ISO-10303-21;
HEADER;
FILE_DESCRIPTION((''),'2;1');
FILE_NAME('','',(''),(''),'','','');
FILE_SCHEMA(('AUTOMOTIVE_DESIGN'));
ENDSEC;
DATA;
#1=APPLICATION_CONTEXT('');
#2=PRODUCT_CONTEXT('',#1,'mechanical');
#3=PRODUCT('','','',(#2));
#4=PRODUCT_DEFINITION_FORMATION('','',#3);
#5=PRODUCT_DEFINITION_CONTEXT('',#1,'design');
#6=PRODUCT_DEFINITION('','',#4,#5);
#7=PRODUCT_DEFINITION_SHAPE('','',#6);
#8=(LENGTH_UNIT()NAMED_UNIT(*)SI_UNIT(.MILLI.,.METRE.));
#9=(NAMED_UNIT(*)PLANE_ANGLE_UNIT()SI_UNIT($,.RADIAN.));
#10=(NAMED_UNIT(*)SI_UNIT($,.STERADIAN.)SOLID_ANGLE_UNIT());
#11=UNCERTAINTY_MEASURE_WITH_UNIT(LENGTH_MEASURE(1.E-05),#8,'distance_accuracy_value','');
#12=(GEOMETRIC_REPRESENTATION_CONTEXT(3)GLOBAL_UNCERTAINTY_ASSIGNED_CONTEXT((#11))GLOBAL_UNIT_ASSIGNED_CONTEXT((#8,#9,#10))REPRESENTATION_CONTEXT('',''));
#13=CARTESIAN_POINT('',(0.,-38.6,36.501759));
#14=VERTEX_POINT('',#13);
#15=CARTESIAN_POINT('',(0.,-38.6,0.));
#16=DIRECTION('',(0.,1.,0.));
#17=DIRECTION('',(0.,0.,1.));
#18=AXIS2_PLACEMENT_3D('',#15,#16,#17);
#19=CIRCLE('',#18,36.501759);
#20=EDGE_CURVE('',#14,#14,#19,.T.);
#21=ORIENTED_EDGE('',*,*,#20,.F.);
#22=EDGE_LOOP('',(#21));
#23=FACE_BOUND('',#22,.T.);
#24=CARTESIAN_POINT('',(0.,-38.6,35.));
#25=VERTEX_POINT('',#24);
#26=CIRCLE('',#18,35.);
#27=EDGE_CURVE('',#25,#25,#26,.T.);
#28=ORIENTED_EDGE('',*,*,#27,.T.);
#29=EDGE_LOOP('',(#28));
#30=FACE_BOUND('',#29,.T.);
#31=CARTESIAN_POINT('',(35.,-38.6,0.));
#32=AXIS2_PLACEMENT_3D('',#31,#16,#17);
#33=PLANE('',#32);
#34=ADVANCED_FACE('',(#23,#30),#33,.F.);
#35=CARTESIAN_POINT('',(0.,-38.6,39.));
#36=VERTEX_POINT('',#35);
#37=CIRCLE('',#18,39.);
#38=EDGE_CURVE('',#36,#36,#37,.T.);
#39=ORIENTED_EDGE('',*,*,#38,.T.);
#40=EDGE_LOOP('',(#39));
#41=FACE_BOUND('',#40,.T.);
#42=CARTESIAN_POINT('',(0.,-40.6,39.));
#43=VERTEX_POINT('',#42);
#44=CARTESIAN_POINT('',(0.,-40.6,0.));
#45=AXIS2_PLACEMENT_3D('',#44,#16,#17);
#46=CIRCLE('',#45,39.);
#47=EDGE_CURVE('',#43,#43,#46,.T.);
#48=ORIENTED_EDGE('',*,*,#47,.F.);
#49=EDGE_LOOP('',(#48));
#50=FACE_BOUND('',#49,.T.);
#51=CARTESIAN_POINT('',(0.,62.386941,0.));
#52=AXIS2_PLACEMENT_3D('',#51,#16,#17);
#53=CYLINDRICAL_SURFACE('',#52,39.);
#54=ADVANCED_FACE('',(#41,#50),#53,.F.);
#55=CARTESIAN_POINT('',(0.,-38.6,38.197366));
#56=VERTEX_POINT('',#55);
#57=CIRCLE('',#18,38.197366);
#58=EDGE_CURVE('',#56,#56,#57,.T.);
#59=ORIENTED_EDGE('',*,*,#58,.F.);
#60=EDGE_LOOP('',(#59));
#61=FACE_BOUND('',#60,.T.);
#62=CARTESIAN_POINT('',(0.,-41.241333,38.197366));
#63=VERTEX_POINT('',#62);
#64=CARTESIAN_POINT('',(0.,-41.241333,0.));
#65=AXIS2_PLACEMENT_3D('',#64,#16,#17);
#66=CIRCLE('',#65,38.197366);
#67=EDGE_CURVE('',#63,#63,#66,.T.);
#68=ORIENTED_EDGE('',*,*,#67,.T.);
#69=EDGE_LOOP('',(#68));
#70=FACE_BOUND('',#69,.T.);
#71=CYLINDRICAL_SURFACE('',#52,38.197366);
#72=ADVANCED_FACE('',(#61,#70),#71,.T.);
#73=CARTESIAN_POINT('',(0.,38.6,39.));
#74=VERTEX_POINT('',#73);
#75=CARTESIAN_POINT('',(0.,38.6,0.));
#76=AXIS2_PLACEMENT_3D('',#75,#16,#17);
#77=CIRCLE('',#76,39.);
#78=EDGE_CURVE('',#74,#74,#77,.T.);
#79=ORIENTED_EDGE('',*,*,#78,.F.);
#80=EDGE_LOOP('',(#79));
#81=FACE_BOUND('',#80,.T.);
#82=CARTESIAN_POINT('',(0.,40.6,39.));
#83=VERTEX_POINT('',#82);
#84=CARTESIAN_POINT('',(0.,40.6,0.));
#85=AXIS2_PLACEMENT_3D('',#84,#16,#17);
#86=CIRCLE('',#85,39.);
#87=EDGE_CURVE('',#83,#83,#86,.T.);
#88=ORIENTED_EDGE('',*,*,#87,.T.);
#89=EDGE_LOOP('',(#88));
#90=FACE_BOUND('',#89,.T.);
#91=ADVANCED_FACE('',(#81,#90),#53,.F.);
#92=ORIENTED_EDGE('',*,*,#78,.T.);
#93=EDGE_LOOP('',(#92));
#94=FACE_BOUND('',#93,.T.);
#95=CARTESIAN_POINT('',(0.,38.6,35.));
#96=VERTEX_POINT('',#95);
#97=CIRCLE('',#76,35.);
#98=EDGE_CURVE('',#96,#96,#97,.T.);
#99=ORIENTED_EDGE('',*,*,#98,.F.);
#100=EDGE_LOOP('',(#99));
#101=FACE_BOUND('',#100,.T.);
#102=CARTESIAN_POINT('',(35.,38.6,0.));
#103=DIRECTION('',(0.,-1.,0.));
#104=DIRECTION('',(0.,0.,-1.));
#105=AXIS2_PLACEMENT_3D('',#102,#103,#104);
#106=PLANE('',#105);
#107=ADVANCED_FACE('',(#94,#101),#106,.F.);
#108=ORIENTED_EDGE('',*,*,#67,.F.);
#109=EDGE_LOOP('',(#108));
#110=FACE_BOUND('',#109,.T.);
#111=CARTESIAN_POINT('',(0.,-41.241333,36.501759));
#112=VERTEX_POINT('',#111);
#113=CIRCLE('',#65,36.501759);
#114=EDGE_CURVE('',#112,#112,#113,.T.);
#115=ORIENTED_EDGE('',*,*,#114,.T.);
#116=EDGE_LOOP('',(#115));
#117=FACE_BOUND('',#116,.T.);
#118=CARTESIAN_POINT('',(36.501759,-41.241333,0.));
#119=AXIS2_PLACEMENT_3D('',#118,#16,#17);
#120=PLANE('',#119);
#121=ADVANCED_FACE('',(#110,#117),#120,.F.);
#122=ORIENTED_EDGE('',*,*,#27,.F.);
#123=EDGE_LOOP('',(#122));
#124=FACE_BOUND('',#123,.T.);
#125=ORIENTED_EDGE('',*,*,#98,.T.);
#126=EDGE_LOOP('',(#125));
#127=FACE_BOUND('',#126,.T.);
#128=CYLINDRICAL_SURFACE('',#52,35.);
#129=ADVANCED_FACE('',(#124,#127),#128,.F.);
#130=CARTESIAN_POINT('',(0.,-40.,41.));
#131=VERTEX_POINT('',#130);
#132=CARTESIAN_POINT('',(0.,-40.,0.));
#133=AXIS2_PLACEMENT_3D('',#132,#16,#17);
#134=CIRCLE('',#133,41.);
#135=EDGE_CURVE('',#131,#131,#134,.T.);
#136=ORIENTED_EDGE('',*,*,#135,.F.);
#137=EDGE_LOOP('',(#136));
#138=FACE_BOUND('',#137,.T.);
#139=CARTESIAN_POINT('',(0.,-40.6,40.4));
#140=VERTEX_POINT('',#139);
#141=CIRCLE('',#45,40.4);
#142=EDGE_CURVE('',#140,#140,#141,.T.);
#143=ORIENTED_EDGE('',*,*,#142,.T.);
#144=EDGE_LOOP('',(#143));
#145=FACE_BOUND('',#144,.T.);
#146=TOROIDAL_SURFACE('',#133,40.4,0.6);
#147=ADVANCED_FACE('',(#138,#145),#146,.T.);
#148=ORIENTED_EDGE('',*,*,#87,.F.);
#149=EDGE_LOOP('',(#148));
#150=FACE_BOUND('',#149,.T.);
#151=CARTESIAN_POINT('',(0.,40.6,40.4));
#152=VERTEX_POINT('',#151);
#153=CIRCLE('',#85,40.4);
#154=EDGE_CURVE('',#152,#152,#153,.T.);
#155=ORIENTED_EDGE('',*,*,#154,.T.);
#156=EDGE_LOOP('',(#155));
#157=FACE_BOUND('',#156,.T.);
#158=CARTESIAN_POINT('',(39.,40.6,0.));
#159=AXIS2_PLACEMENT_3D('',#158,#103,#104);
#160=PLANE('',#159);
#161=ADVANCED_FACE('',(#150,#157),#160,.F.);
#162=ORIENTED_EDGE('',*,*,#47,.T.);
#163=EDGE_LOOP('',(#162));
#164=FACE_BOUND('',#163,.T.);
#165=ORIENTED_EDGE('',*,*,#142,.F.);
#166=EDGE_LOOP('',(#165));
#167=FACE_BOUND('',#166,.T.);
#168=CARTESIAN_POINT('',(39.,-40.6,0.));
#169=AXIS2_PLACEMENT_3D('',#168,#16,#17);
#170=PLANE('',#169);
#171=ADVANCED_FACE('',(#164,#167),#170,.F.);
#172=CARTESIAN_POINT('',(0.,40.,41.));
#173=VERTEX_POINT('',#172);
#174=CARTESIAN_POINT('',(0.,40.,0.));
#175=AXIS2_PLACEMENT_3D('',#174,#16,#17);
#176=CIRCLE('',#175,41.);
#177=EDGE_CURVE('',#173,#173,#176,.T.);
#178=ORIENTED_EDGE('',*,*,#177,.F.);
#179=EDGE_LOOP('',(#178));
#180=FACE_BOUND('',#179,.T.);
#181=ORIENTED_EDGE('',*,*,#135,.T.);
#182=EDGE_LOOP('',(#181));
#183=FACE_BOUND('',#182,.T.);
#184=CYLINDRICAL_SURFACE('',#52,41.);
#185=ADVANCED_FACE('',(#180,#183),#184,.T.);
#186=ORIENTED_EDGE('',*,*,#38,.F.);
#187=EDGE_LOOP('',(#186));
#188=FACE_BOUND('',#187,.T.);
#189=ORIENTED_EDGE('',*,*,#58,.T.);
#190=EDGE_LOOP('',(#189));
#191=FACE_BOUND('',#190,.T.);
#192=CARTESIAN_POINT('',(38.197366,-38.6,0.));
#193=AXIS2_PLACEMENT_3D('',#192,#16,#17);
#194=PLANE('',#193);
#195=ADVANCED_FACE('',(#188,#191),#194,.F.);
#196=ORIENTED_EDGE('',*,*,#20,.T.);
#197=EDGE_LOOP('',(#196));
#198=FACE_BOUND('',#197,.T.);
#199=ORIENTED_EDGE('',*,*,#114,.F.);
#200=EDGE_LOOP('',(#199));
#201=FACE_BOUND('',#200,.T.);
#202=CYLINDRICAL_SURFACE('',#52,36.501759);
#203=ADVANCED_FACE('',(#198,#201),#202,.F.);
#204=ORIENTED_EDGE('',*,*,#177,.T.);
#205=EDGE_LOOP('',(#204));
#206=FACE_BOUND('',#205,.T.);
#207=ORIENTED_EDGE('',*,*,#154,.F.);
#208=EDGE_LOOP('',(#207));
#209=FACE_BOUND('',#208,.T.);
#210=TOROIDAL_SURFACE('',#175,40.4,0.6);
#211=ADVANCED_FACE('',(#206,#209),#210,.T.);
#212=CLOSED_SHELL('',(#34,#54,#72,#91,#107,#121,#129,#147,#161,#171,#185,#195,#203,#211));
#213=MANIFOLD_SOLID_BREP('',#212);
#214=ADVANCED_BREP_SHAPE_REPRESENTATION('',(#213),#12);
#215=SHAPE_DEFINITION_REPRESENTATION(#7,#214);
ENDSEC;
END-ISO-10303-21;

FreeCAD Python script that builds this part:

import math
import FreeCAD as App
import Part
import Sketcher

V = App.Vector
Q = App.Units.Quantity

doc = App.newDocument("Part")
params = doc.addObject("Spreadsheet::Sheet", "Params")
for row, (alias, value) in enumerate([
    ("sketch1_radius", "0.6 mm"),
    ("sketch1_width", "4 mm"),
    ("sketch1_height", "2 mm"),
    ("sketch1_height2", "80 mm"),
    ("sketch1_width2", "1.4 mm"),
    ("revolution_angle", "360 deg"),
], start=1):
    params.set(f"A{row}", alias)
    params.set(f"B{row}", "=" + value)
    params.setAlias(f"B{row}", alias)

body = doc.addObject("PartDesign::Body", "Body")

# Sketch on XY plane
sketch1 = doc.addObject("Sketcher::SketchObject", "Sketch")
body.addObject(sketch1)
sketch1.AttachmentSupport = (doc.XY_Plane, [""])
sketch1.MapMode = "FlatFace"
sketch1.addGeometry([
    Part.LineSegment(V(35, 38.6, 0), V(35, -38.6, 0)),  # 0
    Part.LineSegment(V(35, -38.6, 0), V(36.5, -38.6, 0)),  # 1
    Part.LineSegment(V(36.5, -38.6, 0), V(36.5, -41.2, 0)),  # 2
    Part.LineSegment(V(36.5, -41.2, 0), V(38.2, -41.2, 0)),  # 3
    Part.LineSegment(V(38.2, -41.2, 0), V(38.2, -38.6, 0)),  # 4
    Part.LineSegment(V(38.2, -38.6, 0), V(39, -38.6, 0)),  # 5
    Part.LineSegment(V(39, -38.6, 0), V(39, -40.6, 0)),  # 6
    Part.LineSegment(V(39, -40.6, 0), V(40.4, -40.6, 0)),  # 7
    Part.ArcOfCircle(Part.Circle(V(40.4, -40, 0), V(0, 0, 1), 0.6), math.radians(-90), math.radians(0)),  # 8
    Part.LineSegment(V(41, -40, 0), V(41, 40, 0)),  # 9
    Part.ArcOfCircle(Part.Circle(V(40.4, 40, 0), V(0, 0, 1), 0.6), math.radians(0), math.radians(90)),  # 10
    Part.LineSegment(V(40.4, 40.6, 0), V(39, 40.6, 0)),  # 11
    Part.LineSegment(V(39, 40.6, 0), V(39, 38.6, 0)),  # 12
    Part.LineSegment(V(39, 38.6, 0), V(35, 38.6, 0)),  # 13
], False)
sketch1.addConstraint([
    Sketcher.Constraint("Coincident", 0, 2, 1, 1),
    Sketcher.Constraint("Coincident", 1, 2, 2, 1),
    Sketcher.Constraint("Coincident", 2, 2, 3, 1),
    Sketcher.Constraint("Coincident", 3, 2, 4, 1),
    Sketcher.Constraint("Coincident", 4, 2, 5, 1),
    Sketcher.Constraint("Coincident", 5, 2, 6, 1),
    Sketcher.Constraint("Coincident", 6, 2, 7, 1),
    Sketcher.Constraint("Tangent", 7, 2, 8, 1),
    Sketcher.Constraint("Tangent", 8, 2, 9, 1),
    Sketcher.Constraint("Tangent", 9, 2, 10, 1),
    Sketcher.Constraint("Tangent", 10, 2, 11, 1),
    Sketcher.Constraint("Coincident", 11, 2, 12, 1),
    Sketcher.Constraint("Coincident", 12, 2, 13, 1),
    Sketcher.Constraint("Coincident", 13, 2, 0, 1),
    Sketcher.Constraint("Vertical", 0),
    Sketcher.Constraint("Horizontal", 1),
    Sketcher.Constraint("Vertical", 2),
    Sketcher.Constraint("Horizontal", 3),
    Sketcher.Constraint("Vertical", 4),
    Sketcher.Constraint("Horizontal", 5),
    Sketcher.Constraint("Vertical", 6),
    Sketcher.Constraint("Horizontal", 7),
    Sketcher.Constraint("Vertical", 9),
    Sketcher.Constraint("Horizontal", 11),
    Sketcher.Constraint("Vertical", 12),
    Sketcher.Constraint("Horizontal", 13),
    Sketcher.Constraint("Equal", 8, 10),
    Sketcher.Constraint("Symmetric", 6, 2, 11, 2, -1),
    Sketcher.Constraint("Horizontal", 1, 2, 4, 2),
    Sketcher.Constraint("Equal", 6, 12),
    Sketcher.Constraint("Radius", 8, Q("0.6 mm")),
    Sketcher.Constraint("DistanceX", 13, 2, 13, 1, Q("4 mm")),
    Sketcher.Constraint("DistanceY", 6, 2, 6, 1, Q("2 mm")),
    Sketcher.Constraint("DistanceY", 9, 1, 9, 2, Q("80 mm")),
    Sketcher.Constraint("DistanceX", 7, 1, 7, 2, Q("1.4 mm")),
    Sketcher.Constraint("DistanceX", -1, 1, 0, 2, Q("35 mm")),
    Sketcher.Constraint("DistanceX", 1, 1, 1, 2, Q("1.501759 mm")),
    Sketcher.Constraint("DistanceX", 3, 1, 3, 2, Q("1.695607 mm")),
    Sketcher.Constraint("DistanceY", 2, 2, 2, 1, Q("2.641333 mm")),
])
sketch1.setExpression("Constraints[30]", "Params.sketch1_radius")
sketch1.setExpression("Constraints[31]", "Params.sketch1_width")
sketch1.setExpression("Constraints[32]", "Params.sketch1_height")
sketch1.setExpression("Constraints[33]", "Params.sketch1_height2")
sketch1.setExpression("Constraints[34]", "Params.sketch1_width2")
revolution = doc.addObject("PartDesign::Revolution", "Revolution")
body.addObject(revolution)
revolution.Profile = sketch1
revolution.ReferenceAxis = (sketch1, ["V_Axis"])
revolution.setExpression("Angle", "Params.revolution_angle")

doc.recompute()
